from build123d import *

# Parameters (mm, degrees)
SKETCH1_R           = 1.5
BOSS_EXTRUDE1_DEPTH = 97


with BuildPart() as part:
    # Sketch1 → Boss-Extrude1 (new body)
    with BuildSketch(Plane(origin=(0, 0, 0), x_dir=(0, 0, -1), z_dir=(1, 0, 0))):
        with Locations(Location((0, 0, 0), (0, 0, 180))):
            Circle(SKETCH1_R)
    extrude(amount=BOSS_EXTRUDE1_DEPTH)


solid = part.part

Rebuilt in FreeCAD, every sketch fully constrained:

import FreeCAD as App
import Part
import Sketcher
Q = App.Units.Quantity

doc = App.newDocument("Part")
body = doc.addObject("PartDesign::Body", "Body")

sketch1 = doc.addObject("Sketcher::SketchObject", "Sketch")
body.addObject(sketch1)
sketch1.AttachmentSupport = (doc.YZ_Plane, [""])
sketch1.MapMode = "FlatFace"
sketch1.addGeometry(Part.Circle(App.Vector(0, 0, 0), App.Vector(0, 0, 1), 1.5), False)
sketch1.addConstraint([
    Sketcher.Constraint("Coincident", 0, 3, -1, 1),
    Sketcher.Constraint("Diameter", 0, Q("3 mm")),
])
pad1 = doc.addObject("PartDesign::Pad", "Pad")
body.addObject(pad1)
pad1.Profile = sketch1
pad1.Length = 97

doc.recompute()
